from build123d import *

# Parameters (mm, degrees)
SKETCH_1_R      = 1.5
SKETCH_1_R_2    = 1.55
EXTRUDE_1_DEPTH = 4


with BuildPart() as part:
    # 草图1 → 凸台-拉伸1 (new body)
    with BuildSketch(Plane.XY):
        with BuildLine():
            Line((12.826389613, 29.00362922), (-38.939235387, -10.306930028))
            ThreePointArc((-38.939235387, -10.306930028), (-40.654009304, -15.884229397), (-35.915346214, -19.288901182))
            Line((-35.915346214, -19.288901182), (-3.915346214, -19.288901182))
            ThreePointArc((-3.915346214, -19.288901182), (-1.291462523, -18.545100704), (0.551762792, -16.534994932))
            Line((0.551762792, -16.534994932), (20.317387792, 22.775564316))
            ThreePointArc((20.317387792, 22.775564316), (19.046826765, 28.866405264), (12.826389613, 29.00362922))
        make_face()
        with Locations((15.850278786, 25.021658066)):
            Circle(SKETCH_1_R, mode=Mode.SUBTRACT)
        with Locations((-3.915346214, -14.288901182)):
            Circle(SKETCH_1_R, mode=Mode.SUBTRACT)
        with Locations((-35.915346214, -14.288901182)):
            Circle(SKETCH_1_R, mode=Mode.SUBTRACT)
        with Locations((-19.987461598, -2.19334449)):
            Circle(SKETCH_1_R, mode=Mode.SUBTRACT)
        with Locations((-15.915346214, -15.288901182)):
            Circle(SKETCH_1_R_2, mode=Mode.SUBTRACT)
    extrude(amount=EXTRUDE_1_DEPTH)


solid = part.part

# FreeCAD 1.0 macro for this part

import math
import FreeCAD as App
import Part
import Sketcher

doc = App.newDocument("Part")
body = doc.addObject("PartDesign::Body", "Body")

# Sketch on XY plane
sketch1 = body.newObject("Sketcher::SketchObject", "Sketch")
sketch1.AttachmentSupport = (doc.getObject("XY_Plane"), [""])
sketch1.MapMode = "FlatFace"
sketch1.addGeometry([
    Part.LineSegment(App.Vector(12.82639, 29.003629, 0), App.Vector(-38.939235, -10.30693, 0)),  # 0
    Part.ArcOfCircle(Part.Circle(App.Vector(-35.915346, -14.288901, 0), App.Vector(0, 0, 1), 5), math.radians(127.212857), math.radians(270)),  # 1
    Part.LineSegment(App.Vector(-35.915346, -19.288901, 0), App.Vector(-3.915346, -19.288901, 0)),  # 2
    Part.ArcOfCircle(Part.Circle(App.Vector(-3.915346, -14.288901, 0), App.Vector(0, 0, 1), 5), math.radians(-90), math.radians(-26.693571)),  # 3
    Part.LineSegment(App.Vector(0.551763, -16.534995, 0), App.Vector(20.317388, 22.775564, 0)),  # 4
    Part.ArcOfCircle(Part.Circle(App.Vector(15.850279, 25.021658, 0), App.Vector(0, 0, 1), 5), math.radians(-26.693571), math.radians(127.212857)),  # 5
    Part.Circle(App.Vector(-35.915346, -14.288901, 0), App.Vector(0, 0, 1), 1.5),  # 6
    Part.Circle(App.Vector(-15.915346, -15.288901, 0), App.Vector(0, 0, 1), 1.55),  # 7
    Part.Circle(App.Vector(-19.987462, -2.193344, 0), App.Vector(0, 0, 1), 1.5),  # 8
    Part.Circle(App.Vector(-3.915346, -14.288901, 0), App.Vector(0, 0, 1), 1.5),  # 9
    Part.Circle(App.Vector(15.850279, 25.021658, 0), App.Vector(0, 0, 1), 1.5),  # 10
], False)
sketch1.addConstraint([
    Sketcher.Constraint("Tangent", 0, 2, 1, 1),
    Sketcher.Constraint("Tangent", 1, 2, 2, 1),
    Sketcher.Constraint("Tangent", 2, 2, 3, 1),
    Sketcher.Constraint("Tangent", 3, 2, 4, 1),
    Sketcher.Constraint("Tangent", 4, 2, 5, 1),
    Sketcher.Constraint("Tangent", 5, 2, 0, 1),
    Sketcher.Constraint("Horizontal", 2),
    Sketcher.Constraint("Coincident", 6, 3, 1, 3),
    Sketcher.Constraint("Coincident", 9, 3, 3, 3),
    Sketcher.Constraint("Coincident", 10, 3, 5, 3),
    Sketcher.Constraint("Equal", 1, 3),
    Sketcher.Constraint("Equal", 3, 5),
    Sketcher.Constraint("Equal", 6, 8),
    Sketcher.Constraint("Equal", 8, 9),
    Sketcher.Constraint("Equal", 9, 10),
    Sketcher.Constraint("Diameter", 6, 3.0),
    Sketcher.Constraint("Radius", 1, 5.0),
    Sketcher.Constraint("Diameter", 7, 3.1),
    Sketcher.Constraint("DistanceX", 2, 1, 2, 2, 32.0),
    Sketcher.Constraint("Distance", 0, 65.0),
    Sketcher.Constraint("Distance", 4, 44.0),
    Sketcher.Constraint("DistanceX", 7, 3, 3, 3, 12.0),
    Sketcher.Constraint("DistanceY", 7, 3, 3, 3, 1.0),
    Sketcher.Constraint("DistanceY", 1, 3, -1, 1, 14.288901),
    Sketcher.Constraint("DistanceX", -1, 1, 5, 3, 15.850279),
    Sketcher.Constraint("DistanceX", 8, 3, -1, 1, 19.987462),
    Sketcher.Constraint("DistanceY", 3, 2, 8, 3, 14.34165),
])
pad1 = body.newObject("PartDesign::Pad", "Pad")
pad1.Profile = sketch1
pad1.Length = 4

doc.recompute()
